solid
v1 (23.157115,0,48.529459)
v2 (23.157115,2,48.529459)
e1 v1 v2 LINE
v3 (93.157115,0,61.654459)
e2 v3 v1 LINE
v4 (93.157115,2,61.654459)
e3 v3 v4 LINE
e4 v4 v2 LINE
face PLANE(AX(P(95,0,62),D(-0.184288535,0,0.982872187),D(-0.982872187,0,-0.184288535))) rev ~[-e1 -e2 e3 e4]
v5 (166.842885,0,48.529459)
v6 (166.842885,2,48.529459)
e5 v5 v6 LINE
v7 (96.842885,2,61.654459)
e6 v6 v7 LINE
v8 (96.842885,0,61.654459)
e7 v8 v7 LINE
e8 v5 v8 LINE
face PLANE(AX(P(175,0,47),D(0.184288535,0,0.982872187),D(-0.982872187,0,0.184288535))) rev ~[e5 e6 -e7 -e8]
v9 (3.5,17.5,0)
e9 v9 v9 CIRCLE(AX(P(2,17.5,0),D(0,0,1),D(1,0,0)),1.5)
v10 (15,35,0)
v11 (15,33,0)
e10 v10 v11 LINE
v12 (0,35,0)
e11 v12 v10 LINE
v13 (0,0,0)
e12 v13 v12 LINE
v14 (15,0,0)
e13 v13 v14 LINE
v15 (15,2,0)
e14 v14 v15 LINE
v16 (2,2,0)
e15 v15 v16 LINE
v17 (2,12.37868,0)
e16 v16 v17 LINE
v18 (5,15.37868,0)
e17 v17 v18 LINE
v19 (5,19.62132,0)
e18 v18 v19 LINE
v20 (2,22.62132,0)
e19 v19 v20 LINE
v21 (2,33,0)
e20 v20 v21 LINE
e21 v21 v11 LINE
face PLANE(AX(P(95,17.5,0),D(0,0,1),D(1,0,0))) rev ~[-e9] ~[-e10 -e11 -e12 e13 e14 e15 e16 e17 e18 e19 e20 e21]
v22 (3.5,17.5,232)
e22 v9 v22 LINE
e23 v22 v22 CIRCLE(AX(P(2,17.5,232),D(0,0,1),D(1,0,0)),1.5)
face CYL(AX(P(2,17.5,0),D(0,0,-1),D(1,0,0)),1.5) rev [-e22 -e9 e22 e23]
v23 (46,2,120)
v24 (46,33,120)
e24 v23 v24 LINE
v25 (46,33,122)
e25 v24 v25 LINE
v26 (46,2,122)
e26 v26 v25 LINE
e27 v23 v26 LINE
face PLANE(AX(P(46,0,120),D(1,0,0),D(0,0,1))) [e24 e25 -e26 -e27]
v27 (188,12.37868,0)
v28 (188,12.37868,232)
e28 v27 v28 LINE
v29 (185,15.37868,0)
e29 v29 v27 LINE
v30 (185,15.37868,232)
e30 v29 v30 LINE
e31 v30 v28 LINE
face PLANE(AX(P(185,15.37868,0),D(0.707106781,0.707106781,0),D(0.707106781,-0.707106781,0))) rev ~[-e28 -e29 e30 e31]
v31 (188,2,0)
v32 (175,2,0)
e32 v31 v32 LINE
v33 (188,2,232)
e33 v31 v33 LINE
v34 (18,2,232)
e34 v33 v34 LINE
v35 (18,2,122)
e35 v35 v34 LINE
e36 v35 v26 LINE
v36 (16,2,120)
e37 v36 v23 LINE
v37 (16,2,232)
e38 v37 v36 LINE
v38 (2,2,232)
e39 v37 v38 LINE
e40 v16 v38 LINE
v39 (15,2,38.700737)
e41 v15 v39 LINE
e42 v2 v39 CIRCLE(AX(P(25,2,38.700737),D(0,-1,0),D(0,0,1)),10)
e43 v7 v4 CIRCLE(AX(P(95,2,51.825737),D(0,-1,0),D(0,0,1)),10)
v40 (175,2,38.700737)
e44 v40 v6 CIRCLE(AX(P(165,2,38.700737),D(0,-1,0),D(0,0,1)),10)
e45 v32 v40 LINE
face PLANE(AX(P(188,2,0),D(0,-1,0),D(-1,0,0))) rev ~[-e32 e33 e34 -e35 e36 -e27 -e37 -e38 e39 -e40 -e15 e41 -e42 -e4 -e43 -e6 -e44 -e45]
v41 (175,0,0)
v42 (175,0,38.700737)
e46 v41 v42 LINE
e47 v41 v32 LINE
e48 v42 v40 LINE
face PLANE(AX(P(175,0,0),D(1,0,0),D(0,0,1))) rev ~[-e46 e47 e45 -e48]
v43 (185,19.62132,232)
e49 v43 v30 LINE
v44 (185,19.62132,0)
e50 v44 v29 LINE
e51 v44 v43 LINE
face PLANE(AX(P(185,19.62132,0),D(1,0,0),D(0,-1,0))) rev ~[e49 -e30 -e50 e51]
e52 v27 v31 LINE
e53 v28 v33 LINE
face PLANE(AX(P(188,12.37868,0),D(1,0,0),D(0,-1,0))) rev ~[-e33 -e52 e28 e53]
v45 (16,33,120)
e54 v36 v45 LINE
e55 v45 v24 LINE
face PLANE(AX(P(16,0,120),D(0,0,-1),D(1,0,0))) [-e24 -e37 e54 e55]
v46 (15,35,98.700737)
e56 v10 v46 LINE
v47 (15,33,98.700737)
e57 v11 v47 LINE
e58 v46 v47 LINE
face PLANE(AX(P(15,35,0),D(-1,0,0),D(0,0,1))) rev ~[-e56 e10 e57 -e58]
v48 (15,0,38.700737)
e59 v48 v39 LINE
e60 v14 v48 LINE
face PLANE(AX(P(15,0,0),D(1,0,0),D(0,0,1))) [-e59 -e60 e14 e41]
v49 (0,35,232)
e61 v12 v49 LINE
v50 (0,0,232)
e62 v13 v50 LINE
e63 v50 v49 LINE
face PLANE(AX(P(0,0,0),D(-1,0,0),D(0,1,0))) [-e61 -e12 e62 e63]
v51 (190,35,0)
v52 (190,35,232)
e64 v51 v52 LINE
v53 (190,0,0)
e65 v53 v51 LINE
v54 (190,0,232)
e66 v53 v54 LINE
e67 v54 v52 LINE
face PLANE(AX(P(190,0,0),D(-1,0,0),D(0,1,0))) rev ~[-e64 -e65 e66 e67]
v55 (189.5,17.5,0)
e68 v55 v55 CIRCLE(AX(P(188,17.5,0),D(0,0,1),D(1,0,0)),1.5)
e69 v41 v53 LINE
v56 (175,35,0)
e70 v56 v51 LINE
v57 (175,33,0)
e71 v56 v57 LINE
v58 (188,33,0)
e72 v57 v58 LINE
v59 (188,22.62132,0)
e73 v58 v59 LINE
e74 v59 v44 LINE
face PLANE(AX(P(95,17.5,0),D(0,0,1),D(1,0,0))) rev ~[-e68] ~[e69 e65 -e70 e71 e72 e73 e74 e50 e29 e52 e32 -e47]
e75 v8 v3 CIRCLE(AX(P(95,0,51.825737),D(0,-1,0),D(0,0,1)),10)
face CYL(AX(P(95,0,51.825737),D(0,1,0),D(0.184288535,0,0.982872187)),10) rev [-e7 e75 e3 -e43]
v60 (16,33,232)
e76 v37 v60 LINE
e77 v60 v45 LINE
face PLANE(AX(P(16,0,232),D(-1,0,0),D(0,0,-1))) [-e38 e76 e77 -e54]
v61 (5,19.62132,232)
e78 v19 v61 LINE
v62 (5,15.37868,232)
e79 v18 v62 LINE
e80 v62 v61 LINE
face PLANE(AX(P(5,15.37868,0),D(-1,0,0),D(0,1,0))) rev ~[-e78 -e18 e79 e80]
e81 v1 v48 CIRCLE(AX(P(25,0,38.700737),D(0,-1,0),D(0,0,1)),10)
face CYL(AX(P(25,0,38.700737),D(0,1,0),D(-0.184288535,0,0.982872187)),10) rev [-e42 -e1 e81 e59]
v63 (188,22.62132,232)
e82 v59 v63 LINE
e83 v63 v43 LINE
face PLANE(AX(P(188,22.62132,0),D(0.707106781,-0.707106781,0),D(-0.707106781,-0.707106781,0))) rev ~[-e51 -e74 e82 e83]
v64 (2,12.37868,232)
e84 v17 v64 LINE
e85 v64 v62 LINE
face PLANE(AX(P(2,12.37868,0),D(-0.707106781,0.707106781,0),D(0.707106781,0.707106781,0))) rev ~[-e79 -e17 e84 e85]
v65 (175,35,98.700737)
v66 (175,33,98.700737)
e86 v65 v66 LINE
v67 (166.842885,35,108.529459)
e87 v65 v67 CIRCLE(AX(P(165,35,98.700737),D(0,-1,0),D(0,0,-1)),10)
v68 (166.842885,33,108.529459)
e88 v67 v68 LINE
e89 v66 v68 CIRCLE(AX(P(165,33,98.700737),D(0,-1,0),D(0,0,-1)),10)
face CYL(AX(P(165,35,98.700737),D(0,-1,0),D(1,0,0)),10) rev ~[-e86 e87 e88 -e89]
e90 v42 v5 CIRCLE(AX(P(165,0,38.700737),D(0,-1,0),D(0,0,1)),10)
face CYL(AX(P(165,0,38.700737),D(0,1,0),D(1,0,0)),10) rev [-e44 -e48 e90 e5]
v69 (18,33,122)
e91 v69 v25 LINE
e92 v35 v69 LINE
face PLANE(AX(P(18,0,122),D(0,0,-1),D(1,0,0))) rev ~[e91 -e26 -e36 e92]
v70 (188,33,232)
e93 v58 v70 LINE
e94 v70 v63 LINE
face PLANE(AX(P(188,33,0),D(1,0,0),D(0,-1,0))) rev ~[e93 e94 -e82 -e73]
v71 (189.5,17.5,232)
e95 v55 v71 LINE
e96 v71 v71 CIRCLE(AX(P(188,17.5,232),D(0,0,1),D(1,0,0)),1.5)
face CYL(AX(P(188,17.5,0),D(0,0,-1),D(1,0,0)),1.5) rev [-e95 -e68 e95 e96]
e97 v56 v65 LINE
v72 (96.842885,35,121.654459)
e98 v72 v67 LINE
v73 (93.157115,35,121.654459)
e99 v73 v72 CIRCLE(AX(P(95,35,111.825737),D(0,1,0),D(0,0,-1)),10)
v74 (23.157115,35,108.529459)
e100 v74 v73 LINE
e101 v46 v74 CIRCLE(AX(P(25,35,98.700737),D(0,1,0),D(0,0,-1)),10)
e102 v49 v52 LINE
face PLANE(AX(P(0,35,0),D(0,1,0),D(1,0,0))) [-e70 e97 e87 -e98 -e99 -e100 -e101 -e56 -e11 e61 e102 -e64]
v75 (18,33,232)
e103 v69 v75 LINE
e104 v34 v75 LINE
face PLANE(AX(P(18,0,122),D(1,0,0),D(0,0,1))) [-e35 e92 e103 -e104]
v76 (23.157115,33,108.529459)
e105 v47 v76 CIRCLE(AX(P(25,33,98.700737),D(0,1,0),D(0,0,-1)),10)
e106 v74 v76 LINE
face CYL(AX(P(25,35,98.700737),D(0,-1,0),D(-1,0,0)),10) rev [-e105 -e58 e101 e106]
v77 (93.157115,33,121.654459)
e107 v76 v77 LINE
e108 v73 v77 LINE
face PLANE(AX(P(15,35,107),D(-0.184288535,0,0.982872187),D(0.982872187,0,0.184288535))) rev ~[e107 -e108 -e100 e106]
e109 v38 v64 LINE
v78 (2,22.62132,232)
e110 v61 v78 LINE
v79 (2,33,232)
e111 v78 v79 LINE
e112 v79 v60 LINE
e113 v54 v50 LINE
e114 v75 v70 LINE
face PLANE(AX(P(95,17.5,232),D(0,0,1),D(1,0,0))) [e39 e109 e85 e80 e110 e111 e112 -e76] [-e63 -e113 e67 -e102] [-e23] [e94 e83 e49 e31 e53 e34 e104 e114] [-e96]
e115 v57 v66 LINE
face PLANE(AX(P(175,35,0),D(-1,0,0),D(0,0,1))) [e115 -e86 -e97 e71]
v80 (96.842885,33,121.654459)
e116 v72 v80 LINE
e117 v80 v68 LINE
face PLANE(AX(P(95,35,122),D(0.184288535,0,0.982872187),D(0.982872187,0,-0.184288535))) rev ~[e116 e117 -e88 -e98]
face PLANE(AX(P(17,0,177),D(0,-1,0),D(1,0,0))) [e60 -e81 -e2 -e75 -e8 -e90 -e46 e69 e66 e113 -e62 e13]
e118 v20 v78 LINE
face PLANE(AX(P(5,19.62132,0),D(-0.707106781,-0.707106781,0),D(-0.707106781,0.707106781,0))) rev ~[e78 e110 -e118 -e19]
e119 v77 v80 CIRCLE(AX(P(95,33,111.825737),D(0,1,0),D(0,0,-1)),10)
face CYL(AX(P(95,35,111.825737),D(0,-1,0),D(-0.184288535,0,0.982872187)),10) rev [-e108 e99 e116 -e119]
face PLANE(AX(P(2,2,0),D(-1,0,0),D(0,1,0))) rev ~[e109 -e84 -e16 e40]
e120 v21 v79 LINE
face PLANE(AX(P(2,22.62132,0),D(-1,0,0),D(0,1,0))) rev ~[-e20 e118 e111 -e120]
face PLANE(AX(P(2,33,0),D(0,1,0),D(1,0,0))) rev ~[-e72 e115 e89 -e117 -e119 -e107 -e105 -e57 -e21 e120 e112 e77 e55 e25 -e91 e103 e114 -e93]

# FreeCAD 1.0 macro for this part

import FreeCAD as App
import Part
import Sketcher
from FreeCAD import Vector


def edges_at(feature, points):
    """Names of the edges that pass closest to the given points."""
    edges = feature.Shape.Edges
    near = lambda p: min(range(len(edges)), key=lambda i: edges[i].distToShape(Part.Vertex(*p))[0])
    return sorted({f"Edge{near(p) + 1}" for p in points})

doc = App.newDocument("Part")
body = doc.addObject("PartDesign::Body", "Body")

sketch1 = body.newObject("Sketcher::SketchObject", "Sketch")
sketch1.AttachmentSupport = (doc.getObject("XY_Plane"), [""])
sketch1.MapMode = "FlatFace"
sketch1.addGeometry([
    Part.LineSegment(Vector(0, 35, 0), Vector(0, 0, 0)),
    Part.LineSegment(Vector(0, 0, 0), Vector(190, 0, 0)),
    Part.LineSegment(Vector(190, 0, 0), Vector(190, 35, 0)),
    Part.LineSegment(Vector(190, 35, 0), Vector(0, 35, 0)),
    Part.Circle(Vector(2, 17.5, 0), Vector(0, 0, 1), 1.5),
    Part.LineSegment(Vector(188, 12.4, 0), Vector(188, 2, 0)),
    Part.LineSegment(Vector(188, 2, 0), Vector(2, 2, 0)),
    Part.LineSegment(Vector(2, 2, 0), Vector(2, 12.4, 0)),
    Part.LineSegment(Vector(2, 12.4, 0), Vector(5, 15.4, 0)),
    Part.LineSegment(Vector(5, 15.4, 0), Vector(5, 19.6, 0)),
    Part.LineSegment(Vector(5, 19.6, 0), Vector(2, 22.6, 0)),
    Part.LineSegment(Vector(2, 22.6, 0), Vector(2, 33, 0)),
    Part.LineSegment(Vector(2, 33, 0), Vector(188, 33, 0)),
    Part.LineSegment(Vector(188, 33, 0), Vector(188, 22.6, 0)),
    Part.LineSegment(Vector(188, 22.6, 0), Vector(185, 19.6, 0)),
    Part.LineSegment(Vector(185, 19.6, 0), Vector(185, 15.4, 0)),
    Part.LineSegment(Vector(185, 15.4, 0), Vector(188, 12.4, 0)),
    Part.Circle(Vector(188, 17.5, 0), Vector(0, 0, 1), 1.5),
], False)
sketch1.addConstraint([
    Sketcher.Constraint("Coincident", 0, 2, 1, 1),
    Sketcher.Constraint("Coincident", 1, 2, 2, 1),
    Sketcher.Constraint("Coincident", 2, 2, 3, 1),
    Sketcher.Constraint("Coincident", 3, 2, 0, 1),
    Sketcher.Constraint("Coincident", 5, 2, 6, 1),
    Sketcher.Constraint("Coincident", 6, 2, 7, 1),
    Sketcher.Constraint("Coincident", 7, 2, 8, 1),
    Sketcher.Constraint("Coincident", 8, 2, 9, 1),
    Sketcher.Constraint("Coincident", 9, 2, 10, 1),
    Sketcher.Constraint("Coincident", 10, 2, 11, 1),
    Sketcher.Constraint("Coincident", 11, 2, 12, 1),
    Sketcher.Constraint("Coincident", 12, 2, 13, 1),
    Sketcher.Constraint("Coincident", 13, 2, 14, 1),
    Sketcher.Constraint("Coincident", 14, 2, 15, 1),
    Sketcher.Constraint("Coincident", 15, 2, 16, 1),
    Sketcher.Constraint("Coincident", 16, 2, 5, 1),
    Sketcher.Constraint("Vertical", 0),
    Sketcher.Constraint("Horizontal", 1),
    Sketcher.Constraint("Vertical", 2),
    Sketcher.Constraint("Horizontal", 3),
    Sketcher.Constraint("Vertical", 5),
    Sketcher.Constraint("Horizontal", 6),
    Sketcher.Constraint("Vertical", 7),
    Sketcher.Constraint("Vertical", 9),
    Sketcher.Constraint("Vertical", 11),
    Sketcher.Constraint("Horizontal", 12),
    Sketcher.Constraint("Vertical", 13),
    Sketcher.Constraint("Vertical", 15),
    Sketcher.Constraint("Coincident", 0, 2, -1, 1),
    Sketcher.Constraint("Equal", 4, 17),
    Sketcher.Constraint("Perpendicular", 8, 10),
    Sketcher.Constraint("Perpendicular", 10, 14),
    Sketcher.Constraint("Perpendicular", 14, 16),
    Sketcher.Constraint("Horizontal", 4, 3, 17, 3),
    Sketcher.Constraint("Horizontal", 10, 2, 13, 2),
    Sketcher.Constraint("Horizontal", 9, 2, 14, 2),
    Sketcher.Constraint("Horizontal", 8, 2, 15, 2),
    Sketcher.Constraint("Horizontal", 7, 2, 16, 2),
    Sketcher.Constraint("Vertical", 17, 3, 5, 2),
    Sketcher.Constraint("Vertical", 4, 3, 6, 2),
    Sketcher.Constraint("Vertical", 7, 2, 10, 2),
    Sketcher.Constraint("Vertical", 5, 2, 12, 2),
    Sketcher.Constraint("Equal", 7, 11),
    Sketcher.Constraint("Diameter", 4, 3.0),
    Sketcher.Constraint("DistanceX", 1, 1, 1, 2, 190.0),
    Sketcher.Constraint("DistanceX", 6, 2, 6, 1, 186.0),
    Sketcher.Constraint("DistanceY", 0, 2, 0, 1, 35.0),
    Sketcher.Constraint("DistanceX", -1, 1, 4, 3, 2.0),
    Sketcher.Constraint("DistanceY", -1, 1, 5, 2, 2.0),
    Sketcher.Constraint("DistanceX", -1, 1, 8, 2, 5.0),
    Sketcher.Constraint("DistanceY", -1, 1, 11, 2, 33.0),
    Sketcher.Constraint("DistanceY", -1, 1, 4, 3, 17.5),
    Sketcher.Constraint("DistanceY", 5, 2, 5, 1, 10.37868),
])
pad1 = body.newObject("PartDesign::Pad", "Pad")
pad1.Profile = sketch1
pad1.Length = 232

sketch2 = body.newObject("Sketcher::SketchObject", "Sketch001")
sketch2.AttachmentSupport = (doc.getObject("XZ_Plane"), [""])
sketch2.MapMode = "FlatFace"
sketch2.addGeometry([
    Part.LineSegment(Vector(16, 232, 0), Vector(16, 120, 0)),
    Part.LineSegment(Vector(16, 120, 0), Vector(46, 120, 0)),
    Part.LineSegment(Vector(46, 120, 0), Vector(46, 122, 0)),
    Part.LineSegment(Vector(46, 122, 0), Vector(18, 122, 0)),
    Part.LineSegment(Vector(18, 122, 0), Vector(18, 232, 0)),
    Part.LineSegment(Vector(18, 232, 0), Vector(16, 232, 0)),
], False)
sketch2.addConstraint([
    Sketcher.Constraint("Coincident", 0, 2, 1, 1),
    Sketcher.Constraint("Coincident", 1, 2, 2, 1),
    Sketcher.Constraint("Coincident", 2, 2, 3, 1),
    Sketcher.Constraint("Coincident", 3, 2, 4, 1),
    Sketcher.Constraint("Coincident", 4, 2, 5, 1),
    Sketcher.Constraint("Coincident", 5, 2, 0, 1),
    Sketcher.Constraint("Vertical", 0),
    Sketcher.Constraint("Horizontal", 1),
    Sketcher.Constraint("Vertical", 2),
    Sketcher.Constraint("Horizontal", 3),
    Sketcher.Constraint("Vertical", 4),
    Sketcher.Constraint("Horizontal", 5),
    Sketcher.Constraint("Equal", 5, 2),
    Sketcher.Constraint("DistanceX", 1, 1, 1, 2, 30.0),
    Sketcher.Constraint("DistanceX", 3, 2, 3, 1, 28.0),
    Sketcher.Constraint("DistanceY", 0, 2, 0, 1, 112.0),
    Sketcher.Constraint("DistanceX", -1, 1, 0, 2, 16.0),
    Sketcher.Constraint("DistanceY", -1, 1, 0, 2, 120.0),
])
pad2 = body.newObject("PartDesign::Pad", "Pad001")
pad2.Profile = sketch2
pad2.Length = 33
pad2.Reversed = True

sketch3 = body.newObject("Sketcher::SketchObject", "Sketch002")
sketch3.AttachmentSupport = (doc.getObject("XZ_Plane"), [""])
sketch3.MapMode = "FlatFace"
sketch3.AttachmentOffset = App.Placement(Vector(0, 0, -35), App.Rotation())
sketch3.addGeometry([
    Part.LineSegment(Vector(175, 107, 0), Vector(175, 0, 0)),
    Part.LineSegment(Vector(175, 0, 0), Vector(15, 0, 0)),
    Part.LineSegment(Vector(15, 0, 0), Vector(15, 107, 0)),
    Part.LineSegment(Vector(15, 107, 0), Vector(95, 122, 0)),
    Part.LineSegment(Vector(95, 122, 0), Vector(175, 107, 0)),
], False)
sketch3.addConstraint([
    Sketcher.Constraint("Coincident", 0, 2, 1, 1),
    Sketcher.Constraint("Coincident", 1, 2, 2, 1),
    Sketcher.Constraint("Coincident", 2, 2, 3, 1),
    Sketcher.Constraint("Coincident", 3, 2, 4, 1),
    Sketcher.Constraint("Coincident", 4, 2, 0, 1),
    Sketcher.Constraint("Vertical", 0),
    Sketcher.Constraint("Horizontal", 1),
    Sketcher.Constraint("Vertical", 2),
    Sketcher.Constraint("PointOnObject", 0, 2, -1),
    Sketcher.Constraint("Horizontal", 2, 2, 4, 2),
    Sketcher.Constraint("Equal", 3, 4),
    Sketcher.Constraint("DistanceX", 1, 2, 1, 1, 160.0),
    Sketcher.Constraint("DistanceY", 0, 2, 0, 1, 107.0),
    Sketcher.Constraint("DistanceX", -1, 1, 0, 2, 175.0),
    Sketcher.Constraint("DistanceY", -1, 1, 3, 2, 122.0),
])
pocket1 = body.newObject("PartDesign::Pocket", "Pocket")
pocket1.Profile = sketch3
pocket1.Length = 5
pocket1.Reversed = True

sketch4 = body.newObject("Sketcher::SketchObject", "Sketch003")
sketch4.AttachmentSupport = (doc.getObject("XZ_Plane"), [""])
sketch4.MapMode = "FlatFace"
sketch4.addGeometry([
    Part.LineSegment(Vector(95, 62, 0), Vector(15, 47, 0)),
    Part.LineSegment(Vector(15, 47, 0), Vector(15, 0, 0)),
    Part.LineSegment(Vector(15, 0, 0), Vector(175, 0, 0)),
    Part.LineSegment(Vector(175, 0, 0), Vector(175, 47, 0)),
    Part.LineSegment(Vector(175, 47, 0), Vector(95, 62, 0)),
], False)
sketch4.addConstraint([
    Sketcher.Constraint("Coincident", 0, 2, 1, 1),
    Sketcher.Constraint("Coincident", 1, 2, 2, 1),
    Sketcher.Constraint("Coincident", 2, 2, 3, 1),
    Sketcher.Constraint("Coincident", 3, 2, 4, 1),
    Sketcher.Constraint("Coincident", 4, 2, 0, 1),
    Sketcher.Constraint("Vertical", 1),
    Sketcher.Constraint("Horizontal", 2),
    Sketcher.Constraint("Vertical", 3),
    Sketcher.Constraint("PointOnObject", 1, 2, -1),
    Sketcher.Constraint("Horizontal", 0, 2, 3, 2),
    Sketcher.Constraint("Equal", 0, 4),
    Sketcher.Constraint("DistanceX", 2, 1, 2, 2, 160.0),
    Sketcher.Constraint("DistanceY", 1, 2, 1, 1, 47.0),
    Sketcher.Constraint("DistanceX", -1, 1, 0, 2, 15.0),
    Sketcher.Constraint("DistanceY", -1, 1, 4, 2, 62.0),
])
pocket2 = body.newObject("PartDesign::Pocket", "Pocket001")
pocket2.Profile = sketch4
pocket2.Length = 5
doc.recompute()

fillet = body.newObject("PartDesign::Fillet", "Fillet")
fillet.Base = (pocket2, edges_at(pocket2, [
    (175, 1, 47),
    (175, 34, 107),
    (15, 34, 107),
    (15, 1, 47),
    (95, 34, 122),
    (95, 1, 62),
]))
fillet.Radius = 10

doc.recompute()
